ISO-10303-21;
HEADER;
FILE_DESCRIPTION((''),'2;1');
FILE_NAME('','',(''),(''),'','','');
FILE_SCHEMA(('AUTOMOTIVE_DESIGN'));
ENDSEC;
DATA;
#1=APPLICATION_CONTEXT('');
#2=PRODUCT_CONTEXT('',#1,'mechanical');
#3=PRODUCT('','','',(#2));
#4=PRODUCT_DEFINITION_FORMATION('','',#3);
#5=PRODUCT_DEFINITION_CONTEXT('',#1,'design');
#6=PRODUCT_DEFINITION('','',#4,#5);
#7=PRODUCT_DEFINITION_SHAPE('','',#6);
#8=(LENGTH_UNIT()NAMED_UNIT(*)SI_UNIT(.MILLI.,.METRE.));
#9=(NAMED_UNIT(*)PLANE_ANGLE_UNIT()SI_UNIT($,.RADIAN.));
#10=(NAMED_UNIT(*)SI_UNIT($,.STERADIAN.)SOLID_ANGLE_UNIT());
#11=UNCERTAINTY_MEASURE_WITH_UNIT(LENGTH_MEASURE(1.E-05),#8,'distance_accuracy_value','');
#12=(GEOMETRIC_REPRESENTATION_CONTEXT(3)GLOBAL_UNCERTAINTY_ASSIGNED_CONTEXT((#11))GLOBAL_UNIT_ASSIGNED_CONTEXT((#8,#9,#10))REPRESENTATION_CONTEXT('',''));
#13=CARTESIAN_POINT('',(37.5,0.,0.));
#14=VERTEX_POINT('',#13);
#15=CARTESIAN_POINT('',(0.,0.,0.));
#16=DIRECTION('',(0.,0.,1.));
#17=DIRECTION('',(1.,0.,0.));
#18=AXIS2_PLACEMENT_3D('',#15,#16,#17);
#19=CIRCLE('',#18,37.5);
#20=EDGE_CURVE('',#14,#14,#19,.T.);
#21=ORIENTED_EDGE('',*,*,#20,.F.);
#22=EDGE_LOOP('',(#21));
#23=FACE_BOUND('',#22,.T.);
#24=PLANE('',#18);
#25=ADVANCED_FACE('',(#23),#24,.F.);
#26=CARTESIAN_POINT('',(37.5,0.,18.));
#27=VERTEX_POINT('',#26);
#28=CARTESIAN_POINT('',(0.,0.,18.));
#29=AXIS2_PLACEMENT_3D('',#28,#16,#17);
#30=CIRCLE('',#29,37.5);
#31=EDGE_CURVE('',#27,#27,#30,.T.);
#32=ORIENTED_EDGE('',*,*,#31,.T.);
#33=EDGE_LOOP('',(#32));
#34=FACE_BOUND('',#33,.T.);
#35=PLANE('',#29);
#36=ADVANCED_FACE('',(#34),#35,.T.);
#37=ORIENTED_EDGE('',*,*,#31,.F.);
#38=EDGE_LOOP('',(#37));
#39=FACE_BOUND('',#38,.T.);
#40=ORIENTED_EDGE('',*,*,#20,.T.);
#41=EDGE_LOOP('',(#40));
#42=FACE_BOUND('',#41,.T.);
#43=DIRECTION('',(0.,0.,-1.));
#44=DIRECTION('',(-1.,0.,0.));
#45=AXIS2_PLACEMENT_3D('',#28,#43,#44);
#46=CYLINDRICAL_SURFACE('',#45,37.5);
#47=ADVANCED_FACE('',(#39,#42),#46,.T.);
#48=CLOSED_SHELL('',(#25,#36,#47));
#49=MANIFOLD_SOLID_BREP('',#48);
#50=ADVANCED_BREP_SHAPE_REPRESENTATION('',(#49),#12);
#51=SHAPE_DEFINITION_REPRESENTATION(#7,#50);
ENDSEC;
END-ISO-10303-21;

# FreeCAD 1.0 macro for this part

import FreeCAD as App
import Part
import Sketcher
from FreeCAD import Vector

doc = App.newDocument("Part")
body = doc.addObject("PartDesign::Body", "Body")

sketch1 = body.newObject("Sketcher::SketchObject", "Sketch")
sketch1.AttachmentSupport = (doc.getObject("XY_Plane"), [""])
sketch1.MapMode = "FlatFace"
sketch1.addGeometry(Part.Circle(Vector(0, 0, 0), Vector(0, 0, 1), 38), False)
sketch1.addConstraint([
    Sketcher.Constraint("Coincident", 0, 3, -1, 1),
    Sketcher.Constraint("Diameter", 0, 75.0),
])
pad1 = body.newObject("PartDesign::Pad", "Pad")
pad1.Profile = sketch1
pad1.Length = 18

doc.recompute()
